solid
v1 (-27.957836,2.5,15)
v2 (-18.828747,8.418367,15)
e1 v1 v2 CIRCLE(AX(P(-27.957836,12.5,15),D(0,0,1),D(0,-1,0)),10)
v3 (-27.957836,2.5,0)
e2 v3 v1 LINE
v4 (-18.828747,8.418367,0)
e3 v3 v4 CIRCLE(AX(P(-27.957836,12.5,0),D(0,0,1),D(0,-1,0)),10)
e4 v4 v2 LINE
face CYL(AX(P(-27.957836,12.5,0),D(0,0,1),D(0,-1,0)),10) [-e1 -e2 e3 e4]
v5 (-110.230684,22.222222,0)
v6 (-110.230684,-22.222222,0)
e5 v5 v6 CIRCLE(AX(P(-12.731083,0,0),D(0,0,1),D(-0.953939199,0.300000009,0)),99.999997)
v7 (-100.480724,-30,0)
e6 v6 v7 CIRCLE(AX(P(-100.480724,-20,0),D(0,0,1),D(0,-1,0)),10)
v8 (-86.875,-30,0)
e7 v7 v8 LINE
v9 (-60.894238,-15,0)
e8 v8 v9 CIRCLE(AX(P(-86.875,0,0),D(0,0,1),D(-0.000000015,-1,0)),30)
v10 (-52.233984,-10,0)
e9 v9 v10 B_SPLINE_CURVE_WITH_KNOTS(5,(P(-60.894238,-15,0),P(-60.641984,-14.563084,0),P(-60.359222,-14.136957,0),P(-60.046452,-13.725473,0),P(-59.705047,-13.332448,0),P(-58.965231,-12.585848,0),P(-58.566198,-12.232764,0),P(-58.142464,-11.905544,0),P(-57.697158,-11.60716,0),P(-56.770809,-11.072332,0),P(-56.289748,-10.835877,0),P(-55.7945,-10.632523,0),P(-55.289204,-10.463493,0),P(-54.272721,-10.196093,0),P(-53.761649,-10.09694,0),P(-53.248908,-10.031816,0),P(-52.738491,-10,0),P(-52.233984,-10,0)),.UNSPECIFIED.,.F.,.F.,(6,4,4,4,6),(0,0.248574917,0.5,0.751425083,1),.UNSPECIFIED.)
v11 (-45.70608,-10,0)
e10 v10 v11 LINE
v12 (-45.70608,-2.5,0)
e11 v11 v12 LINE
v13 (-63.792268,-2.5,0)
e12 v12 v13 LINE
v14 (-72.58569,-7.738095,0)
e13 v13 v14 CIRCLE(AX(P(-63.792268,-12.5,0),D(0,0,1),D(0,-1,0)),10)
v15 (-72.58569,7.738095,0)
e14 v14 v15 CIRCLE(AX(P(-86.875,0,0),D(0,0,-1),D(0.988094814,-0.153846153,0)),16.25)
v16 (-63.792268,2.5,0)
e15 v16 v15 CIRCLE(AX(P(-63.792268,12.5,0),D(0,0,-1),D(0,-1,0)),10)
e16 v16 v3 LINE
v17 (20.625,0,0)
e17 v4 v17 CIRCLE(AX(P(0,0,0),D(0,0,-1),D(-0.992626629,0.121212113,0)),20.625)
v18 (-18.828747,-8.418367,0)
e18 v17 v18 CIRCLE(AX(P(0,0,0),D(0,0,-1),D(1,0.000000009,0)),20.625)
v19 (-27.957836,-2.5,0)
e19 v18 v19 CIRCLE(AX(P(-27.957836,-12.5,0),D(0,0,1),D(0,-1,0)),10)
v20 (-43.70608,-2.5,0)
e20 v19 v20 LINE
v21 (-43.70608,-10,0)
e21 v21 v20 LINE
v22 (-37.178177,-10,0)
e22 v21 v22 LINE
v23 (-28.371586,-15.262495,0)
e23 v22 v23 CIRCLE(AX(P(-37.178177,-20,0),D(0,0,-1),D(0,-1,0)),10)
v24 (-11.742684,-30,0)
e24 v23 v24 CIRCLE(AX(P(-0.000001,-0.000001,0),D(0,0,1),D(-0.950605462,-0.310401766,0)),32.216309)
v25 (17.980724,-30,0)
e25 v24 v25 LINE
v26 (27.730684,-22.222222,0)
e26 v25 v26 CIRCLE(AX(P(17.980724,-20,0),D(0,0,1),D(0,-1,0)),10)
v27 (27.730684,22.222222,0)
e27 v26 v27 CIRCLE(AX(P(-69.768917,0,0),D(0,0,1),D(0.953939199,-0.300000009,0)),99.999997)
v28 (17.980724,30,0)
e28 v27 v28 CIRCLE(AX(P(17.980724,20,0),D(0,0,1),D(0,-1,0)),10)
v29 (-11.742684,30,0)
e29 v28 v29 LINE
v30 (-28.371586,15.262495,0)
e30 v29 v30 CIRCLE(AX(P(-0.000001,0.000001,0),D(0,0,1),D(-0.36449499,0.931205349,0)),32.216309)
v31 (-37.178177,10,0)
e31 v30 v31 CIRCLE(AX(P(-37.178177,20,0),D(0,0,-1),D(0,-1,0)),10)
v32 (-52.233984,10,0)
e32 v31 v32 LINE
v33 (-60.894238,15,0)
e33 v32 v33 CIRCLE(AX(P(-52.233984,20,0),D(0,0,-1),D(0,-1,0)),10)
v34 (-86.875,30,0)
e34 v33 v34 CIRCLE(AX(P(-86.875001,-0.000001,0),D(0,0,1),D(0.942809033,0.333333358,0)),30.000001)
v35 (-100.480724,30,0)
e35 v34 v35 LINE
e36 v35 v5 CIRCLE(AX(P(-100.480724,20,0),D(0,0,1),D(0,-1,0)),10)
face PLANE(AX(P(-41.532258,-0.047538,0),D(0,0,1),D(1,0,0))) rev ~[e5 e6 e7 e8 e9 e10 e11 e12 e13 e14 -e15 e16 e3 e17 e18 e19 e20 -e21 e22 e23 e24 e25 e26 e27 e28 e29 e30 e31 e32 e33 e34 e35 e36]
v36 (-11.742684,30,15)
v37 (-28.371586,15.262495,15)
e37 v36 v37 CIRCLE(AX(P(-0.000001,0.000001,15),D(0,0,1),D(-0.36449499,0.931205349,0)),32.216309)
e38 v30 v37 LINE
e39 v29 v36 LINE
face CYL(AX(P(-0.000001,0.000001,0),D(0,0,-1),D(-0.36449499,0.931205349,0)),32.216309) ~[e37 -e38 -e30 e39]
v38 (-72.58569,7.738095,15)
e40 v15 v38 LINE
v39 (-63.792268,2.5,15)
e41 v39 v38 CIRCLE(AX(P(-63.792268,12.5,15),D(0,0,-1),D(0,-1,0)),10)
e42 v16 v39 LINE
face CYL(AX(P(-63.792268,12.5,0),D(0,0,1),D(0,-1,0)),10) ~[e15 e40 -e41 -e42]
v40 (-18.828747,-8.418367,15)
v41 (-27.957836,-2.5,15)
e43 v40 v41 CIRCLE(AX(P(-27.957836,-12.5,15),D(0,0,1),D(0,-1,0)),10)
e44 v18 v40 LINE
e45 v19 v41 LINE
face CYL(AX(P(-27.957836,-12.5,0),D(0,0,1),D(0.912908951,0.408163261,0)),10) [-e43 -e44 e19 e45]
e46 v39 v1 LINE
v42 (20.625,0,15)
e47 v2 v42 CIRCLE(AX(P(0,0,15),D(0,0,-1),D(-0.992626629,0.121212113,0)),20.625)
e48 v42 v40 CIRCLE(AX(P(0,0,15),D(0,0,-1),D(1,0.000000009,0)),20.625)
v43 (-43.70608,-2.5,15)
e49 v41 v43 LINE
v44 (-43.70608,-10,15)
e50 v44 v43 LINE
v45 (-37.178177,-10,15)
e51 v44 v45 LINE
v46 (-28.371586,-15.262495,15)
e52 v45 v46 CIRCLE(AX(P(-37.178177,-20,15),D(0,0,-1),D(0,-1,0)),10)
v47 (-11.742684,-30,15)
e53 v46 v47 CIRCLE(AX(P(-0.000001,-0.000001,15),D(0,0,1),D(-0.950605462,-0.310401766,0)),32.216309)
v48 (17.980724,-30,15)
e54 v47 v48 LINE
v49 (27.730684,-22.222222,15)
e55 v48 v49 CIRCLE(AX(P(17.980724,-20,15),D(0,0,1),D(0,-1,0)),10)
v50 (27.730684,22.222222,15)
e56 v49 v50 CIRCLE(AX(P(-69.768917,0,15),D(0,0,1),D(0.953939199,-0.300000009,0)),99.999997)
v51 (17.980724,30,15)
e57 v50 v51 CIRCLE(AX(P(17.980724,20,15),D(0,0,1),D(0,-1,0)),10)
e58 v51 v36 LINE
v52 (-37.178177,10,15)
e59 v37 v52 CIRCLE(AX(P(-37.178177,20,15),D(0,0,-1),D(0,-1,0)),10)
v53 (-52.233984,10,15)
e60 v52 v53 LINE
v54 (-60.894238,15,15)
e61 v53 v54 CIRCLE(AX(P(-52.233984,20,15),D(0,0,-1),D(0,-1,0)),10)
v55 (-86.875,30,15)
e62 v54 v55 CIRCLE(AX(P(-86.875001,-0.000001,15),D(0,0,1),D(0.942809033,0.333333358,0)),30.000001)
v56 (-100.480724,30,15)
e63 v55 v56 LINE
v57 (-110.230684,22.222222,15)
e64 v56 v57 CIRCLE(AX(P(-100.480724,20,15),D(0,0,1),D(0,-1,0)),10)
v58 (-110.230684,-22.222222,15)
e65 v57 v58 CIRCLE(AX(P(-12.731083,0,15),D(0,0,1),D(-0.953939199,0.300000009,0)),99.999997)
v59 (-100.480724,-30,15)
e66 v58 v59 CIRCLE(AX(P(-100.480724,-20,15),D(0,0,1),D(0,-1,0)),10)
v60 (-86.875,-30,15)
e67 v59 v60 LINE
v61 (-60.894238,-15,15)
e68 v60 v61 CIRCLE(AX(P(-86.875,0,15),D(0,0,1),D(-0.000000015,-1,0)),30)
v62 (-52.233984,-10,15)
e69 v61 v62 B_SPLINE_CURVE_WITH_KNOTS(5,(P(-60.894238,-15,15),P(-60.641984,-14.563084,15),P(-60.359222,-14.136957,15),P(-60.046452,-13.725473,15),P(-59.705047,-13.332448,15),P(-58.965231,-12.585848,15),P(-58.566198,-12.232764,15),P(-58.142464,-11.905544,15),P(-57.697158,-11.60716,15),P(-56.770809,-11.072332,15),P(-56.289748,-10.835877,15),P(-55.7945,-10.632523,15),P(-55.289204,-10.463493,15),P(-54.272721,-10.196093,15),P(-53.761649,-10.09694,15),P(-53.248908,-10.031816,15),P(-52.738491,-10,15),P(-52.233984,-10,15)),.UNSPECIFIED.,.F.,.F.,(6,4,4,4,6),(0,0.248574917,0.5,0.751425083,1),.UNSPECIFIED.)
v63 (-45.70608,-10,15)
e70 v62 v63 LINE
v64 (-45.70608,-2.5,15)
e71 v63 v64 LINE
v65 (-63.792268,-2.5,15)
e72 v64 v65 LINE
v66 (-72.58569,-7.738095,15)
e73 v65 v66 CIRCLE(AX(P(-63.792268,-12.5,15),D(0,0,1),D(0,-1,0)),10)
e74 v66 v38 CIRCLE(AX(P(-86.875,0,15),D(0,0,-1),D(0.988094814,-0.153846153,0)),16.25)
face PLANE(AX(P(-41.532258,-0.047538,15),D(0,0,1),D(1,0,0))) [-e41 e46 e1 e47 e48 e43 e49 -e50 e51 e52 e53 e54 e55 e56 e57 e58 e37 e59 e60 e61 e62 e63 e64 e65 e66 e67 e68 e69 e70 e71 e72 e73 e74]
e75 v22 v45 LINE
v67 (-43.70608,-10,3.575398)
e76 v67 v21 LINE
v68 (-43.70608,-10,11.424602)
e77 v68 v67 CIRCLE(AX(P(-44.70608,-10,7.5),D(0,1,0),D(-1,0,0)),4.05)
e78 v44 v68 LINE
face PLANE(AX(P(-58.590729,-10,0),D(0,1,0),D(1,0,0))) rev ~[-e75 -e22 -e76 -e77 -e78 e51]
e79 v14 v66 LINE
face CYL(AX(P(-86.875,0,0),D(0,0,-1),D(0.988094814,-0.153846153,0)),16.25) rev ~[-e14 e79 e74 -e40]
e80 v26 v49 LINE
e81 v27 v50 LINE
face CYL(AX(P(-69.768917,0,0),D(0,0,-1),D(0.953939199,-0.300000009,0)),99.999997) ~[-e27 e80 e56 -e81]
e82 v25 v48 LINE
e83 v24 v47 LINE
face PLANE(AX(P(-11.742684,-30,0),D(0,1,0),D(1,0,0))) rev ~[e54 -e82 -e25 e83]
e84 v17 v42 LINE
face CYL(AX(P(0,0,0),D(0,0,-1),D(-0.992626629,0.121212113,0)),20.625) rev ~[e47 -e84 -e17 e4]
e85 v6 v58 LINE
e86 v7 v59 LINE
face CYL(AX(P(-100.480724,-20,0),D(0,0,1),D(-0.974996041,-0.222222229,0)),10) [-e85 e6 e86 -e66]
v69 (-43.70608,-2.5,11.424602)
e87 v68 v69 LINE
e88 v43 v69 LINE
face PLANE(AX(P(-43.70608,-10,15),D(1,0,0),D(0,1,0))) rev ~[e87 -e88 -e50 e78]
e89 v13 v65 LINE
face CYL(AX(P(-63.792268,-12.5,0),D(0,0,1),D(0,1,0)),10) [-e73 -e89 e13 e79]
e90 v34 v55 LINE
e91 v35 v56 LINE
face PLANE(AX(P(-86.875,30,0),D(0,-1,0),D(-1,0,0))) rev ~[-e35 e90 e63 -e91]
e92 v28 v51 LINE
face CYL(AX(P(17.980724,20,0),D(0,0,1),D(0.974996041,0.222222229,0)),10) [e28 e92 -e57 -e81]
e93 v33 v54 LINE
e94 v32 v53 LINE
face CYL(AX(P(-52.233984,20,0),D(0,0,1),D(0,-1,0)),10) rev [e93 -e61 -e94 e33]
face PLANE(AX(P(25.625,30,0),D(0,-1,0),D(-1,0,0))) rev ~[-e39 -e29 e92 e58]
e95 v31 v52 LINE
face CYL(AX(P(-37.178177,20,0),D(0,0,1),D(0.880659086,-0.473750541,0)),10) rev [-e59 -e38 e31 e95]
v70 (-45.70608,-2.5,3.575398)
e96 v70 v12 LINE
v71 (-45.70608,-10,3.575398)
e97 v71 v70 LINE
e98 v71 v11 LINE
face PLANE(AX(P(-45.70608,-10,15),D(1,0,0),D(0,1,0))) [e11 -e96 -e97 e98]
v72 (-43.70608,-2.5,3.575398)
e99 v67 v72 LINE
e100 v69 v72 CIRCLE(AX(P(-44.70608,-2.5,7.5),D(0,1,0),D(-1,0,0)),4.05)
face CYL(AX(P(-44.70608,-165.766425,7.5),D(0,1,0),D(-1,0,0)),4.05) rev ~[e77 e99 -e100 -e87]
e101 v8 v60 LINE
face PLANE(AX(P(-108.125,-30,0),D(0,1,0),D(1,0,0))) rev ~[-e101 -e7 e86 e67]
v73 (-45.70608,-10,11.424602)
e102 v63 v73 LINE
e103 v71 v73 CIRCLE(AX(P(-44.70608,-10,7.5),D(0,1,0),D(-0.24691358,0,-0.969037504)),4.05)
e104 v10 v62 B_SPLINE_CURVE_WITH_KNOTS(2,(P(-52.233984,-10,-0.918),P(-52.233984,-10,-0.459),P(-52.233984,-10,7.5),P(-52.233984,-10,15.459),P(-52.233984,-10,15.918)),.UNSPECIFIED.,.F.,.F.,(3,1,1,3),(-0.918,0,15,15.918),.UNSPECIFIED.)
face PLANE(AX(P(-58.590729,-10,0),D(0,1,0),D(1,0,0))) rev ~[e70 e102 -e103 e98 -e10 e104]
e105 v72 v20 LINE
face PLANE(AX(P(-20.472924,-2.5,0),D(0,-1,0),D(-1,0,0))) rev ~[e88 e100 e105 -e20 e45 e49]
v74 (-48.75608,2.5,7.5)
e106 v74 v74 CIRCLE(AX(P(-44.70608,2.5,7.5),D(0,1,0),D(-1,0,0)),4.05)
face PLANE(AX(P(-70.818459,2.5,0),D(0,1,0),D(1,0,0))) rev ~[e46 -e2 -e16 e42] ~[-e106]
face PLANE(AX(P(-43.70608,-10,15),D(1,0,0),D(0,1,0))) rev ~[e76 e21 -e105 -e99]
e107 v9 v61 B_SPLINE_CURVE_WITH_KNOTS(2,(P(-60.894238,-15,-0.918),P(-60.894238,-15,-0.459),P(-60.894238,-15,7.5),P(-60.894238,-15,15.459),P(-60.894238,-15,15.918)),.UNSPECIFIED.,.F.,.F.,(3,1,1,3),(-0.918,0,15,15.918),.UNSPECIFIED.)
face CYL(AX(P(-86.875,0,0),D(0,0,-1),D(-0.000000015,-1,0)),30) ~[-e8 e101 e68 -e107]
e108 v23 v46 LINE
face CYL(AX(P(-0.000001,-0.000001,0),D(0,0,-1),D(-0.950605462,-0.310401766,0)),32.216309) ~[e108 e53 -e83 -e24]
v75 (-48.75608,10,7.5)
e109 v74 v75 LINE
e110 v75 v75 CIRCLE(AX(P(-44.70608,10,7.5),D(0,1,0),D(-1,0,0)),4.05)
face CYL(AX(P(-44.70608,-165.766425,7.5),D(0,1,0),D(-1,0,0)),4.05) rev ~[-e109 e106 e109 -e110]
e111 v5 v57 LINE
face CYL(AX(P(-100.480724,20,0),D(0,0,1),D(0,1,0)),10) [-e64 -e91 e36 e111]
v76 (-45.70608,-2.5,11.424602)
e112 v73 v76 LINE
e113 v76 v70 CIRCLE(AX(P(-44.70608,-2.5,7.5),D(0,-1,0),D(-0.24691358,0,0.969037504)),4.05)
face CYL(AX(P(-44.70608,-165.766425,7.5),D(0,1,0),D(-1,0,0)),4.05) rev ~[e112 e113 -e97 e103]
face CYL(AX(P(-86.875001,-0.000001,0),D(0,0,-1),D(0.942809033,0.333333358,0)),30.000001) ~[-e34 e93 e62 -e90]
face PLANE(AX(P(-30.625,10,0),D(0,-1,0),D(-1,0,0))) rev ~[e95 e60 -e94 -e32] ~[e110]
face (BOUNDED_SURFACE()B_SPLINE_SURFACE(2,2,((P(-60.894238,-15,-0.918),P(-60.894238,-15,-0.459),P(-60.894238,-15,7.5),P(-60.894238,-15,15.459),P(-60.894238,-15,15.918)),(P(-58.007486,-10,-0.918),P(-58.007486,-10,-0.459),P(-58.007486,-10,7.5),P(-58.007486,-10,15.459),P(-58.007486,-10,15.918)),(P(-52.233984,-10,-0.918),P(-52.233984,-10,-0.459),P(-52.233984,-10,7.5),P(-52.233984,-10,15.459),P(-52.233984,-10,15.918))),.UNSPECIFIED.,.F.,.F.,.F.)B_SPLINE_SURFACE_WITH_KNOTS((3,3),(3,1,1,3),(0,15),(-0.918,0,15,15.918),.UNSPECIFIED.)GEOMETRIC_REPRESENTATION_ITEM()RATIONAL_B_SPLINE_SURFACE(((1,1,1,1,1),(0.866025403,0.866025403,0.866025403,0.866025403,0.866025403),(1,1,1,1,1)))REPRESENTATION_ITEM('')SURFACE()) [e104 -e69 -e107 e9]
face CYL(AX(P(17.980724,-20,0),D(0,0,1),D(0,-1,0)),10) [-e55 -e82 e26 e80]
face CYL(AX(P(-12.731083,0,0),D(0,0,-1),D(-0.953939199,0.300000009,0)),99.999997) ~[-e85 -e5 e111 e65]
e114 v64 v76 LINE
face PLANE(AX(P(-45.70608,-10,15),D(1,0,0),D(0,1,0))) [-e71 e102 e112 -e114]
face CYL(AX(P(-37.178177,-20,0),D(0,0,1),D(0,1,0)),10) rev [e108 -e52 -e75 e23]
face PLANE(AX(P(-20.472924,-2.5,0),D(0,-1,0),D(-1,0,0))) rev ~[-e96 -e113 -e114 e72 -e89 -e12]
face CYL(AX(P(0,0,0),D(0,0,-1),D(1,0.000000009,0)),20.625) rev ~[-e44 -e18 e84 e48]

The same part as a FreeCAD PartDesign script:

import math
import FreeCAD as App
import Part
import Sketcher
from FreeCAD import Vector
Q = App.Units.Quantity


def edges_at(feature, points):
    """Names of the edges that pass closest to the given points."""
    edges = feature.Shape.Edges
    near = lambda p: min(range(len(edges)), key=lambda i: edges[i].distToShape(Part.Vertex(*p))[0])
    return sorted({f"Edge{near(p) + 1}" for p in points})

doc = App.newDocument("Part")
params = doc.addObject("Spreadsheet::Sheet", "Params")
for row, (alias, value) in enumerate([
    ("sketch1_radius", "30.000001 mm"),
    ("sketch1_radius2", "30 mm"),
    ("sketch1_radius3", "16.25 mm"),
    ("sketch1_width", "21.25 mm"),
    ("sketch1_width2", "21.25 mm"),
    ("pad1_length", "15 mm"),
    ("fillet_radius", "10 mm"),
    ("sketch2_diameter", "8.1 mm"),
    ("hole_diameter", "8.1 mm"),
    ("sketch3_width", "2 mm"),
    ("sketch3_height", "7.5 mm"),
], start=1):
    params.set(f"A{row}", alias)
    params.set(f"B{row}", "=" + value)
    params.setAlias(f"B{row}", alias)

body = doc.addObject("PartDesign::Body", "Body")

# Sketch on XY plane
sketch1 = body.newObject("Sketcher::SketchObject", "Sketch")
sketch1.AttachmentSupport = (doc.getObject("XY_Plane"), [""])
sketch1.MapMode = "FlatFace"
sketch1.addGeometry([
    Part.LineSegment(Vector(-11.742684, -30, 0), Vector(25.625, -30, 0)),  # 0
    Part.ArcOfCircle(Part.Circle(Vector(-69.768917, 0, 0), Vector(0, 0, 1), 99.999997), math.radians(-17.457604), math.radians(17.457604)),  # 1
    Part.LineSegment(Vector(25.625, 30, 0), Vector(-11.742684, 30, 0)),  # 2
    Part.ArcOfCircle(Part.Circle(Vector(-0.000001, 0.000001, 0), Vector(0, 0, 1), 32.216309), math.radians(111.376507), math.radians(161.916556)),  # 3
    Part.LineSegment(Vector(-30.625, 10, 0), Vector(-58.590729, 10, 0)),  # 4
    Part.ArcOfCircle(Part.Circle(Vector(-86.875001, -0.000001, 0), Vector(0, 0, 1), 30.000001), math.radians(19.471222), math.radians(89.999998)),  # 5
    Part.LineSegment(Vector(-86.875, 30, 0), Vector(-108.125, 30, 0)),  # 6
    Part.ArcOfCircle(Part.Circle(Vector(-12.731083, 0, 0), Vector(0, 0, 1), 99.999997), math.radians(162.542396), math.radians(197.457604)),  # 7
    Part.LineSegment(Vector(-108.125, -30, 0), Vector(-86.875, -30, 0)),  # 8
    Part.ArcOfCircle(Part.Circle(Vector(-86.875, 0, 0), Vector(0, 0, 1), 30), math.radians(-90.000001), math.radians(-28.955025)),  # 9
    Part.ArcOfCircle(Part.Circle(Vector(-86.87503, 0.000011, 0), Vector(0, 0, 1), 30.000032), math.radians(-28.955015), math.radians(-19.471221)),  # 10
    Part.LineSegment(Vector(-58.590729, -10, 0), Vector(-30.625, -10, 0)),  # 11
    Part.ArcOfCircle(Part.Circle(Vector(-0.000001, -0.000001, 0), Vector(0, 0, 1), 32.216309), math.radians(-161.916556), math.radians(-111.376507)),  # 12
    Part.LineSegment(Vector(-70.818459, 2.5, 0), Vector(-20.472924, 2.5, 0)),  # 13
    Part.ArcOfCircle(Part.Circle(Vector(0, 0, 0), Vector(0, 0, 1), 20.625), math.radians(-0.000001), math.radians(173.037938)),  # 14
    Part.ArcOfCircle(Part.Circle(Vector(0, 0, 0), Vector(0, 0, 1), 20.625), math.radians(-173.037938), math.radians(0.000001)),  # 15
    Part.LineSegment(Vector(-20.472924, -2.5, 0), Vector(-70.818459, -2.5, 0)),  # 16
    Part.ArcOfCircle(Part.Circle(Vector(-86.875, 0, 0), Vector(0, 0, 1), 16.25), math.radians(8.849883), math.radians(351.150117)),  # 17
], False)
sketch1.addConstraint([
    Sketcher.Constraint("Coincident", 0, 2, 1, 1),
    Sketcher.Constraint("Coincident", 1, 2, 2, 1),
    Sketcher.Constraint("Coincident", 2, 2, 3, 1),
    Sketcher.Constraint("Coincident", 3, 2, 4, 1),
    Sketcher.Constraint("Coincident", 4, 2, 5, 1),
    Sketcher.Constraint("Coincident", 5, 2, 6, 1),
    Sketcher.Constraint("Coincident", 6, 2, 7, 1),
    Sketcher.Constraint("Coincident", 7, 2, 8, 1),
    Sketcher.Constraint("Coincident", 8, 2, 9, 1),
    Sketcher.Constraint("Coincident", 9, 2, 10, 1),
    Sketcher.Constraint("Coincident", 10, 2, 11, 1),
    Sketcher.Constraint("Coincident", 11, 2, 12, 1),
    Sketcher.Constraint("Coincident", 12, 2, 0, 1),
    Sketcher.Constraint("Coincident", 13, 2, 14, 2),
    Sketcher.Constraint("Coincident", 14, 1, 15, 2),
    Sketcher.Constraint("Coincident", 15, 1, 16, 1),
    Sketcher.Constraint("Coincident", 16, 2, 17, 2),
    Sketcher.Constraint("Coincident", 17, 1, 13, 1),
    Sketcher.Constraint("Horizontal", 0),
    Sketcher.Constraint("Horizontal", 2),
    Sketcher.Constraint("Horizontal", 4),
    Sketcher.Constraint("Horizontal", 6),
    Sketcher.Constraint("Horizontal", 8),
    Sketcher.Constraint("Horizontal", 11),
    Sketcher.Constraint("Horizontal", 13),
    Sketcher.Constraint("Horizontal", 16),
    Sketcher.Constraint("Coincident", 3, 3, -1, 1),
    Sketcher.Constraint("Coincident", 12, 3, -1, 1),
    Sketcher.Constraint("Coincident", 14, 3, -1, 1),
    Sketcher.Constraint("Coincident", 15, 3, -1, 1),
    Sketcher.Constraint("Coincident", 9, 3, 5, 3),
    Sketcher.Constraint("Coincident", 17, 3, 5, 3),
    Sketcher.Constraint("PointOnObject", 1, 3, -1),
    Sketcher.Constraint("PointOnObject", 5, 3, -1),
    Sketcher.Constraint("PointOnObject", 7, 3, -1),
    Sketcher.Constraint("PointOnObject", 14, 1, -1),
    Sketcher.Constraint("Radius", 5, Q("30.000001 mm")),
    Sketcher.Constraint("Radius", 9, Q("30 mm")),
    Sketcher.Constraint("Radius", 17, Q("16.25 mm")),
    Sketcher.Constraint("DistanceY", 0, 2, -1, 1, Q("30 mm")),
    Sketcher.Constraint("DistanceY", -1, 1, 1, 2, Q("30 mm")),
    Sketcher.Constraint("DistanceY", -1, 1, 3, 2, Q("10 mm")),
    Sketcher.Constraint("DistanceY", 10, 2, -1, 1, Q("10 mm")),
    Sketcher.Constraint("Radius", 14, Q("20.625 mm")),
    Sketcher.Constraint("DistanceX", 9, 2, 11, 2, Q("30 mm")),
    Sketcher.Constraint("DistanceX", 14, 1, 1, 2, Q("5 mm")),
    Sketcher.Constraint("DistanceY", 15, 1, 13, 2, Q("5 mm")),
    Sketcher.Constraint("DistanceX", 6, 2, 6, 1, Q("21.25 mm")),
    Sketcher.Constraint("DistanceX", 8, 1, 8, 2, Q("21.25 mm")),
    Sketcher.Constraint("DistanceY", -1, 1, 13, 2, Q("2.5 mm")),
    Sketcher.Constraint("Radius", 3, Q("32.216309 mm")),
    Sketcher.Constraint("Radius", 10, Q("30.000032 mm")),
    Sketcher.Constraint("Radius", 12, Q("32.216309 mm")),
    Sketcher.Constraint("DistanceX", 6, 2, 17, 3, Q("21.25 mm")),
    Sketcher.Constraint("DistanceX", 9, 3, 9, 2, Q("26.25 mm")),
    Sketcher.Constraint("Radius", 1, Q("99.999997 mm")),
    Sketcher.Constraint("Radius", 7, Q("99.999997 mm")),
    Sketcher.Constraint("DistanceX", 11, 1, 11, 2, Q("27.965729 mm")),
])
sketch1.setExpression("Constraints[36]", "Params.sketch1_radius")
sketch1.setExpression("Constraints[37]", "Params.sketch1_radius2")
sketch1.setExpression("Constraints[38]", "Params.sketch1_radius3")
sketch1.setExpression("Constraints[47]", "Params.sketch1_width")
sketch1.setExpression("Constraints[48]", "Params.sketch1_width2")
pad1 = body.newObject("PartDesign::Pad", "Pad")
pad1.Profile = sketch1
pad1.setExpression("Length", "Params.pad1_length")
doc.recompute()

fillet = body.newObject("PartDesign::Fillet", "Fillet")
fillet.Base = (pad1, edges_at(pad1, [
    (-108.125, -30, 7.5),
    (-108.125, 30, 7.5),
    (25.625, 30, 7.5),
    (25.625, -30, 7.5),
    (-20.473, -2.5, 7.5),
    (-20.473, 2.5, 7.5),
    (-70.818, 2.5, 7.5),
    (-70.818, -2.5, 7.5),
    (-58.591, -10, 7.5),
    (-30.625, -10, 7.5),
    (-30.625, 10, 7.5),
    (-58.591, 10, 7.5),
]))
fillet.setExpression("Radius", "Params.fillet_radius")

# Sketch on XZ plane
sketch2 = body.newObject("Sketcher::SketchObject", "Sketch001")
sketch2.AttachmentSupport = (doc.getObject("XZ_Plane"), [""])
sketch2.MapMode = "FlatFace"
sketch2.AttachmentOffset = App.Placement(Vector(0, 0, 10), App.Rotation())
sketch2.addGeometry(Part.Circle(Vector(-44.7, 7.5, 0), Vector(0, 0, 1), 4), False)
sketch2.addConstraint([
    Sketcher.Constraint("Diameter", 0, Q("8.1 mm")),
    Sketcher.Constraint("DistanceY", -1, 1, 0, 3, Q("7.5 mm")),
    Sketcher.Constraint("DistanceX", 0, 3, -1, 1, Q("44.70608 mm")),
])
sketch2.setExpression("Constraints[0]", "Params.sketch2_diameter")
doc.recompute()
hole = body.newObject("PartDesign::Hole", "Hole")
hole.Profile = sketch2
hole.ThreadType = "None"
hole.setExpression("Diameter", "Params.hole_diameter")
hole.DepthType = "ThroughAll"

# Sketch on XY plane
sketch3 = body.newObject("Sketcher::SketchObject", "Sketch002")
sketch3.AttachmentSupport = (doc.getObject("XY_Plane"), [""])
sketch3.MapMode = "FlatFace"
sketch3.AttachmentOffset = App.Placement(Vector(0, 0, 15), App.Rotation())
sketch3.addGeometry([
    Part.LineSegment(Vector(-45.7, -2.5, 0), Vector(-45.7, -10, 0)),
    Part.LineSegment(Vector(-45.7, -10, 0), Vector(-43.7, -10, 0)),
    Part.LineSegment(Vector(-43.7, -10, 0), Vector(-43.7, -2.5, 0)),
    Part.LineSegment(Vector(-43.7, -2.5, 0), Vector(-45.7, -2.5, 0)),
], False)
sketch3.addConstraint([
    Sketcher.Constraint("Coincident", 0, 2, 1, 1),
    Sketcher.Constraint("Coincident", 1, 2, 2, 1),
    Sketcher.Constraint("Coincident", 2, 2, 3, 1),
    Sketcher.Constraint("Coincident", 3, 2, 0, 1),
    Sketcher.Constraint("Vertical", 0),
    Sketcher.Constraint("Horizontal", 1),
    Sketcher.Constraint("Vertical", 2),
    Sketcher.Constraint("Horizontal", 3),
    Sketcher.Constraint("DistanceX", 1, 1, 1, 2, Q("2 mm")),
    Sketcher.Constraint("DistanceY", 0, 2, 0, 1, Q("7.5 mm")),
    Sketcher.Constraint("DistanceY", 0, 2, -1, 1, Q("10 mm")),
    Sketcher.Constraint("DistanceX", 0, 2, -1, 1, Q("45.70608 mm")),
])
sketch3.setExpression("Constraints[8]", "Params.sketch3_width")
sketch3.setExpression("Constraints[9]", "Params.sketch3_height")
pocket1 = body.newObject("PartDesign::Pocket", "Pocket")
pocket1.Profile = sketch3
pocket1.Type = "ThroughAll"

doc.recompute()
